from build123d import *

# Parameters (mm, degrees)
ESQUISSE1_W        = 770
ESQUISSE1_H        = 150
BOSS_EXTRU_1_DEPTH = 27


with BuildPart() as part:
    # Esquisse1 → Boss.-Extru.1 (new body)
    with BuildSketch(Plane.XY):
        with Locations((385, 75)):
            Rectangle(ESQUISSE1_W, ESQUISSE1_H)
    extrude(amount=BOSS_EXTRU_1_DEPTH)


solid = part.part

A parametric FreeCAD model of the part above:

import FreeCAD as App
import Part
import Sketcher
from FreeCAD import Vector
Q = App.Units.Quantity


def add_polygon(sketch, points):
    """Adds a closed chain of lines whose ends are joined by coincident constraints."""
    first, n = sketch.GeometryCount, len(points)
    for a, b in zip(points, points[1:] + points[:1]):
        sketch.addGeometry(Part.LineSegment(App.Vector(*a, 0), App.Vector(*b, 0)), False)
    for i in range(n):
        sketch.addConstraint(Sketcher.Constraint("Coincident", first + i, 2, first + (i + 1) % n, 1))

doc = App.newDocument("Part")
params = doc.addObject("Spreadsheet::Sheet", "Params")
for row, (alias, value) in enumerate([
    ("sketch1_width", "770 mm"),
    ("sketch1_height", "150 mm"),
    ("pad1_length", "27 mm"),
], start=1):
    params.set(f"A{row}", alias)
    params.set(f"B{row}", "=" + value)
    params.setAlias(f"B{row}", alias)

body = doc.addObject("PartDesign::Body", "Body")

sketch1 = body.newObject("Sketcher::SketchObject", "Sketch")
sketch1.AttachmentSupport = (doc.getObject("XY_Plane"), [""])
sketch1.MapMode = "FlatFace"
add_polygon(sketch1, [(0, 150), (0, 0), (770, 0), (770, 150)])
sketch1.addConstraint([
    Sketcher.Constraint("Vertical", 0),
    Sketcher.Constraint("Horizontal", 1),
    Sketcher.Constraint("Vertical", 2),
    Sketcher.Constraint("Horizontal", 3),
    Sketcher.Constraint("Coincident", 0, 2, -1, 1),
    Sketcher.Constraint("DistanceX", 1, 1, 1, 2, Q("770 mm")),
    Sketcher.Constraint("DistanceY", 0, 2, 0, 1, Q("150 mm")),
])
sketch1.setExpression("Constraints[9]", "Params.sketch1_width")
sketch1.setExpression("Constraints[10]", "Params.sketch1_height")
pad1 = body.newObject("PartDesign::Pad", "Pad")
pad1.Profile = sketch1
pad1.setExpression("Length", "Params.pad1_length")

doc.recompute()
